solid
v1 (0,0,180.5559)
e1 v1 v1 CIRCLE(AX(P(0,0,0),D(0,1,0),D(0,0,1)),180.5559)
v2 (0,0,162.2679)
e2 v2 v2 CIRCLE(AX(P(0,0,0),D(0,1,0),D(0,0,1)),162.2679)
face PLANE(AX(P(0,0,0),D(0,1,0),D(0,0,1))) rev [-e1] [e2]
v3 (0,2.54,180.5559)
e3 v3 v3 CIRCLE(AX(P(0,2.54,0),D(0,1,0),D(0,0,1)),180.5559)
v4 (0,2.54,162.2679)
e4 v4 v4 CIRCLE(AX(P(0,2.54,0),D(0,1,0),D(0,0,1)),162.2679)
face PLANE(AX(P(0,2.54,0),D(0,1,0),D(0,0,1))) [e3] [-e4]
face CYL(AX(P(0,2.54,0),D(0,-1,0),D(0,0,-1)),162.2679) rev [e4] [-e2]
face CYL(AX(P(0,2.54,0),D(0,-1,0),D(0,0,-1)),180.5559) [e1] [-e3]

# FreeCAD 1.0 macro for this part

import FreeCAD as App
import Part
import Sketcher
from FreeCAD import Vector
Q = App.Units.Quantity

doc = App.newDocument("Part")
body = doc.addObject("PartDesign::Body", "Body")

# Sketch on XZ plane
sketch1 = body.newObject("Sketcher::SketchObject", "Sketch")
sketch1.AttachmentSupport = (doc.getObject("XZ_Plane"), [""])
sketch1.MapMode = "FlatFace"
sketch1.addGeometry([
    Part.Circle(Vector(0, 0, 0), Vector(0, 0, 1), 181),
    Part.Circle(Vector(0, 0, 0), Vector(0, 0, 1), 162),
], False)
sketch1.addConstraint([
    Sketcher.Constraint("Coincident", 0, 3, -1, 1),
    Sketcher.Constraint("Coincident", 1, 3, -1, 1),
    Sketcher.Constraint("Diameter", 0, Q("14.217 in")),
    Sketcher.Constraint("Diameter", 1, Q("12.777 in")),
])
pad1 = body.newObject("PartDesign::Pad", "Pad")
pad1.Profile = sketch1
pad1.Length = Q("0.1 in")
pad1.Reversed = True

doc.recompute()
